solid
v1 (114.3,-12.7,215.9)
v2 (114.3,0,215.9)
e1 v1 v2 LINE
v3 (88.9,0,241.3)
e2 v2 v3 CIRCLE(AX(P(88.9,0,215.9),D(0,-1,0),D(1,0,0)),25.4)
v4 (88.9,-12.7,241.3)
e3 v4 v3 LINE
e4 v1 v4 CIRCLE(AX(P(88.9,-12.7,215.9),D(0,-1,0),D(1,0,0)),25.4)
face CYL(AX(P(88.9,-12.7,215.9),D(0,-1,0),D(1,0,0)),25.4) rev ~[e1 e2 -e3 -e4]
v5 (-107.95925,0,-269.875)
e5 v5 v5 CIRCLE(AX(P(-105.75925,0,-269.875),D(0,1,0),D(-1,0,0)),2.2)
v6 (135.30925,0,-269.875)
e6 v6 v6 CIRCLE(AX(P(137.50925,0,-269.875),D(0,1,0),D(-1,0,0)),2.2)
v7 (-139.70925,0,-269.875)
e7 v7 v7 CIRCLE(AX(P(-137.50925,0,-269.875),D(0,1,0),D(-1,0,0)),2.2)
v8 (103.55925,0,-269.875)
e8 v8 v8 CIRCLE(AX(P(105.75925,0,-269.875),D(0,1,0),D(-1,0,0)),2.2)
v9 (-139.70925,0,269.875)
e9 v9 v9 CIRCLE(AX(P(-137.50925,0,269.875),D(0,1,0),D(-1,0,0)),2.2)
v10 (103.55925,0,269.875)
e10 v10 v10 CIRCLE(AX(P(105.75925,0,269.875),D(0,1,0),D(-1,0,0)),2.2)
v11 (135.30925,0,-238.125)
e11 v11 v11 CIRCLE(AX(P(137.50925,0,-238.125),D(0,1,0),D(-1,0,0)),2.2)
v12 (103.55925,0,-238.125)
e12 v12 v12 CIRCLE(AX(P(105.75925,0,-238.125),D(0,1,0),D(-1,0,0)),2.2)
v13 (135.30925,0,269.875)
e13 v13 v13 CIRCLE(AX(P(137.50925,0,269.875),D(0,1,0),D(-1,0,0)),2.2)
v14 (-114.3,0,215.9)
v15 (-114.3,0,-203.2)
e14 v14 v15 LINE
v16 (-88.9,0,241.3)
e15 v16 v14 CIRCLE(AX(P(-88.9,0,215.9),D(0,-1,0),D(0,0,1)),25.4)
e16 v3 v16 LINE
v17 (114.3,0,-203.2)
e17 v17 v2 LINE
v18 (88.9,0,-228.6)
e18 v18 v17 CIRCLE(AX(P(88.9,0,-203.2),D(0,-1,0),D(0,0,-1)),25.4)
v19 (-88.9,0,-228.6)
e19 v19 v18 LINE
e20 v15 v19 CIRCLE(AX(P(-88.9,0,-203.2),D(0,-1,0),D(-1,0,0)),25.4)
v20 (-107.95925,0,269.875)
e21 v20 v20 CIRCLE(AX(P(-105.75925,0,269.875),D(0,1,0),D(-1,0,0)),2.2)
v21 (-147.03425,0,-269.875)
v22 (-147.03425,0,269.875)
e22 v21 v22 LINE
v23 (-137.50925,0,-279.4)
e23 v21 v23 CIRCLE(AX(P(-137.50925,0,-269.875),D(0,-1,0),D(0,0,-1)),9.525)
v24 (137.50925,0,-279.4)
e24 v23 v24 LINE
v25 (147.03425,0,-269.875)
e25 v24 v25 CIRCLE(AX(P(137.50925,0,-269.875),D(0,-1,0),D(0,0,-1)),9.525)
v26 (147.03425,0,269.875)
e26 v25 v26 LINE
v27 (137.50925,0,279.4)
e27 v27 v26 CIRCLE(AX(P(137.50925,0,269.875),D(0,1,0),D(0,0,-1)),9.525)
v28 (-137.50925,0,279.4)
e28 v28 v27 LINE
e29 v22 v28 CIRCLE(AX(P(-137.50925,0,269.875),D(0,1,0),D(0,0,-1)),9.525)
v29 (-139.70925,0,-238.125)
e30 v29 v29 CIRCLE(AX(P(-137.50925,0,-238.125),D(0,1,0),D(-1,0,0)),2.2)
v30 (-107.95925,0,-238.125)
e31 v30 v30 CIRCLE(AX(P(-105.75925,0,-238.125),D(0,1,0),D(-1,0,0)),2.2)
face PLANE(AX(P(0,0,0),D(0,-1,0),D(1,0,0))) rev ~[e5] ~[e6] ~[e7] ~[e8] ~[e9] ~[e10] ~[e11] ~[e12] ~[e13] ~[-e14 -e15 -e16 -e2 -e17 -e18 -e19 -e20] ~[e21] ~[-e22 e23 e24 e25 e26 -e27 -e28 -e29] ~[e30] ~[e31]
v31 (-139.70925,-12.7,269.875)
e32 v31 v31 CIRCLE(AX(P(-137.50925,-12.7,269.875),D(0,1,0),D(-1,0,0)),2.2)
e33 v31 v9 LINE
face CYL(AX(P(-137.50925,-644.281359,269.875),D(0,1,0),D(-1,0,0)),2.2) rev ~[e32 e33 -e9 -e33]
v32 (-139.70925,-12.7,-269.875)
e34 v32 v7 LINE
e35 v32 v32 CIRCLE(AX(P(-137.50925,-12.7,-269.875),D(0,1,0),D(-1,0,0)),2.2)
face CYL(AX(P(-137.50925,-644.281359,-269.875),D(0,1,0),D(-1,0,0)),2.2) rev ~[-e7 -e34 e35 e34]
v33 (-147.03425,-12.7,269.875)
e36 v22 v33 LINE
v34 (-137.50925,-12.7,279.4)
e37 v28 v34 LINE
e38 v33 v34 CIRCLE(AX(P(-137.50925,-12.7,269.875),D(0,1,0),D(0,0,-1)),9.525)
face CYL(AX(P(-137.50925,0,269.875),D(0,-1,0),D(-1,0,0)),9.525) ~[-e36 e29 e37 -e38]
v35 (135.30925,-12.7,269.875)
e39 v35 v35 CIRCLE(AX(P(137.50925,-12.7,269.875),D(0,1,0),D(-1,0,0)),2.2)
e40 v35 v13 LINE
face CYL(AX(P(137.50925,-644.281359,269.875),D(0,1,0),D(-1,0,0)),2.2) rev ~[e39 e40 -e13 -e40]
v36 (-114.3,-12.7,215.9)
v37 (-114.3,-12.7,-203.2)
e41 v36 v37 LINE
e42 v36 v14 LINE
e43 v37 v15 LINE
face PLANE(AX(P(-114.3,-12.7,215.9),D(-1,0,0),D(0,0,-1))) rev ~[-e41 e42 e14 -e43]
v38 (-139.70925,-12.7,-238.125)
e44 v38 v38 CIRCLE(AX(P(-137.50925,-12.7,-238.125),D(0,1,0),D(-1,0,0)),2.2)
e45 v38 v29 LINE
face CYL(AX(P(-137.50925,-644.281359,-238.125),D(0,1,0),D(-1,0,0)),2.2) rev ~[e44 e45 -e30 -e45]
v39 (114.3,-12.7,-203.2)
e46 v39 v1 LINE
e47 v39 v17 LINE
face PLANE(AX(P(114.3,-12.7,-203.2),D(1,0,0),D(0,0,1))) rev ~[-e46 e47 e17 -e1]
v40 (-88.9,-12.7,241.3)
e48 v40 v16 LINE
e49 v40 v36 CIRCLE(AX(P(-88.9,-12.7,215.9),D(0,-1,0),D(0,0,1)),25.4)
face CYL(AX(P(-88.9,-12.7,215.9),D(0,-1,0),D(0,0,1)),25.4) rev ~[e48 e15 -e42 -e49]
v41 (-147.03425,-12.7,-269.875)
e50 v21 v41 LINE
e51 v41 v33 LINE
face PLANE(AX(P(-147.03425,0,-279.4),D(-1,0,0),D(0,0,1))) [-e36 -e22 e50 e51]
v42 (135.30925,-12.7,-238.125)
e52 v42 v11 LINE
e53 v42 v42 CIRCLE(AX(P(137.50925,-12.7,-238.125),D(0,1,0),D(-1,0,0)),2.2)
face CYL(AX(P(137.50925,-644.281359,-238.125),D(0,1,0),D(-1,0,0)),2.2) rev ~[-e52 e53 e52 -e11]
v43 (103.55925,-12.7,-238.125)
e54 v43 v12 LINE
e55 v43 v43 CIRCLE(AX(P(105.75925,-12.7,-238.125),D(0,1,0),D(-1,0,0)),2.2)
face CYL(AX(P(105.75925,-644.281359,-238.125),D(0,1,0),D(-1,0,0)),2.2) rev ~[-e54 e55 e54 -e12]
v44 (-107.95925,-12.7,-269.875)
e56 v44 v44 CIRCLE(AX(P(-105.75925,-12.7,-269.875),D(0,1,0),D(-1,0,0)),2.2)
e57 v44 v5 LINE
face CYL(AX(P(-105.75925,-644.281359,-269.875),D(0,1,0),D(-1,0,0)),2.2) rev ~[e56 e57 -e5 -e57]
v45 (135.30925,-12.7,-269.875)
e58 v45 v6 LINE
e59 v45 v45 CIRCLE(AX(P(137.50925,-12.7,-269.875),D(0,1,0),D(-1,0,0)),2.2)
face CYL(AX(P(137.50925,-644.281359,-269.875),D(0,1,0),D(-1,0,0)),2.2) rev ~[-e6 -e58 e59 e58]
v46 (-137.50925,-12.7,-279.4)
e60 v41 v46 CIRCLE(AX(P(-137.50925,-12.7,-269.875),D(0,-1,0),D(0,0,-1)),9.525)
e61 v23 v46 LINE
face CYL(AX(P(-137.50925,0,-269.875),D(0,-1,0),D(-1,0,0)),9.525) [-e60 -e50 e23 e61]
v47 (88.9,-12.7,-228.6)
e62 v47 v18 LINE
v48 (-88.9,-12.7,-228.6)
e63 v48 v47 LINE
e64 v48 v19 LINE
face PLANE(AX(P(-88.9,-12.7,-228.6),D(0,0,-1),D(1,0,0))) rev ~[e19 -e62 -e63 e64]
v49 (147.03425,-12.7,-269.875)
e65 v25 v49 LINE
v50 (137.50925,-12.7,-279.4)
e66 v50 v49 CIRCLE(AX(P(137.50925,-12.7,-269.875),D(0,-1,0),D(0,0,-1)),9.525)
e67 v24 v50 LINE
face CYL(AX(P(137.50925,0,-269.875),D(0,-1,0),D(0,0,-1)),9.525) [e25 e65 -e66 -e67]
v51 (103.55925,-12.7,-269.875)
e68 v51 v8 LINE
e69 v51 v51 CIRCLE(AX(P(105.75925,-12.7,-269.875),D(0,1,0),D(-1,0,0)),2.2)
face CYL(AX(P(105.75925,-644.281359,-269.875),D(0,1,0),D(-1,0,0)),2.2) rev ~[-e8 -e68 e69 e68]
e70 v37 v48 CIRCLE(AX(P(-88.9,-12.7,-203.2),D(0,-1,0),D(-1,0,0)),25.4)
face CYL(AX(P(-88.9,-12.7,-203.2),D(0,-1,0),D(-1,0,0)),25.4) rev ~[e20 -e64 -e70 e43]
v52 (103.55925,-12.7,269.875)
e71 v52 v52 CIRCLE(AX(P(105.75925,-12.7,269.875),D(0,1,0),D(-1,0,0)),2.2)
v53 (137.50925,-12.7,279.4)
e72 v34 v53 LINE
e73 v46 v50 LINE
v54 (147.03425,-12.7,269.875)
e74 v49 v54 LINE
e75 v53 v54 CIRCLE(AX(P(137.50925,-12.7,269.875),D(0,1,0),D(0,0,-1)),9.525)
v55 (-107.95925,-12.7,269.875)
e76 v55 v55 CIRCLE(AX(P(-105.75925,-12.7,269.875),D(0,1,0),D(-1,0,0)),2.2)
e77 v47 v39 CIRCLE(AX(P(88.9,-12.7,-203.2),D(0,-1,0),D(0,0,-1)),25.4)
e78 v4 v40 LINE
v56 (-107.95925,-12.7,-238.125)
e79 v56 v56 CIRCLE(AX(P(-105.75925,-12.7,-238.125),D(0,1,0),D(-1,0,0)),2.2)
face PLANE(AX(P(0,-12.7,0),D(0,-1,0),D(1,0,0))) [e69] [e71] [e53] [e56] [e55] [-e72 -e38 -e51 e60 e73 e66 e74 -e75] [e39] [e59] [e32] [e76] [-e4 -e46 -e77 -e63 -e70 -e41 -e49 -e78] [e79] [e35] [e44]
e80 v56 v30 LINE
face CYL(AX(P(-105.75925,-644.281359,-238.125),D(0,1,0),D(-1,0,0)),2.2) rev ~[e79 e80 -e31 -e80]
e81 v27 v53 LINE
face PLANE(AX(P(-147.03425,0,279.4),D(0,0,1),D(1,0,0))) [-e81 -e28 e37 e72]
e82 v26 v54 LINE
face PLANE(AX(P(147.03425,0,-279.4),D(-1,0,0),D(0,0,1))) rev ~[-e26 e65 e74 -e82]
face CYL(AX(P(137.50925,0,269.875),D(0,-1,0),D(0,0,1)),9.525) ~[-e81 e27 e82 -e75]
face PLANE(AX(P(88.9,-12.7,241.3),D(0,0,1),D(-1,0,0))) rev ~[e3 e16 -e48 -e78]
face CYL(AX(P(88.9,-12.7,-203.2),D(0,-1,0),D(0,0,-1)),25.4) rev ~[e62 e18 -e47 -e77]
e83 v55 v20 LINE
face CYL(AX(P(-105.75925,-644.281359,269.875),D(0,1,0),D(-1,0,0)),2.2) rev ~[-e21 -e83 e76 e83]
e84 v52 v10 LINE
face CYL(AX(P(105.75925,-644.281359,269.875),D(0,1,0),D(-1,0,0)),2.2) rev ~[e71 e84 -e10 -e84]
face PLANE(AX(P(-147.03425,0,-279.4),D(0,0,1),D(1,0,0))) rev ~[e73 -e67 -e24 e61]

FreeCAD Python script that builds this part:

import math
import FreeCAD as App
import Part
import Sketcher

V = App.Vector
Q = App.Units.Quantity


def edges_at(feature, points):
    """Names of the edges that pass closest to the given points."""
    edges = feature.Shape.Edges
    near = lambda p: min(range(len(edges)), key=lambda i: edges[i].distToShape(Part.Vertex(*p))[0])
    return sorted({f"Edge{near(p) + 1}" for p in points})

doc = App.newDocument("Part")
params = doc.addObject("Spreadsheet::Sheet", "Params")
for row, (alias, value) in enumerate([
    ("sketch1_height", "22 in"),
    ("pad1_length", "0.5 in"),
    ("hole_diameter", "4.4 mm"),
    ("fillet_radius", "0.375 in"),
    ("sketch3_radius", "1 in"),
    ("sketch3_width", "7 in"),
    ("sketch3_height", "16.5 in"),
], start=1):
    params.set(f"A{row}", alias)
    params.set(f"B{row}", "=" + value)
    params.setAlias(f"B{row}", alias)

body = doc.addObject("PartDesign::Body", "Body")

sketch1 = body.newObject("Sketcher::SketchObject", "Sketch")
sketch1.AttachmentSupport = (doc.getObject("XZ_Plane"), [""])
sketch1.MapMode = "FlatFace"
sketch1.addGeometry([
    Part.LineSegment(V(-147.03425, 279.4, 0), V(-147.03425, -279.4, 0)),
    Part.LineSegment(V(-147.03425, -279.4, 0), V(147.03425, -279.4, 0)),
    Part.LineSegment(V(147.03425, -279.4, 0), V(147.03425, 279.4, 0)),
    Part.LineSegment(V(147.03425, 279.4, 0), V(-147.03425, 279.4, 0)),
], False)
sketch1.addConstraint([
    Sketcher.Constraint("Coincident", 0, 2, 1, 1),
    Sketcher.Constraint("Coincident", 1, 2, 2, 1),
    Sketcher.Constraint("Coincident", 2, 2, 3, 1),
    Sketcher.Constraint("Coincident", 3, 2, 0, 1),
    Sketcher.Constraint("Vertical", 0),
    Sketcher.Constraint("Horizontal", 1),
    Sketcher.Constraint("Vertical", 2),
    Sketcher.Constraint("Horizontal", 3),
    Sketcher.Constraint("Symmetric", 0, 2, 2, 2, -1, 1),
    Sketcher.Constraint("DistanceY", 0, 2, 0, 1, Q("22 in")),
    Sketcher.Constraint("DistanceX", 1, 1, 1, 2, Q("11.5775 in")),
])
sketch1.setExpression("Constraints[9]", "Params.sketch1_height")
pad1 = body.newObject("PartDesign::Pad", "Pad")
pad1.Profile = sketch1
pad1.setExpression("Length", "Params.pad1_length")

sketch2 = body.newObject("Sketcher::SketchObject", "Sketch001")
sketch2.AttachmentSupport = (doc.getObject("XZ_Plane"), [""])
sketch2.MapMode = "FlatFace"
sketch2.AttachmentOffset = App.Placement(V(0, 0, 0.5 * 25.4), App.Rotation())
sketch2.addGeometry([
    Part.Circle(V(-137.50925, 269.875, 0), V(0, 0, 1), 2.2),
    Part.Circle(V(-105.75925, 269.875, 0), V(0, 0, 1), 2.2),
    Part.Circle(V(105.75925, 269.875, 0), V(0, 0, 1), 2.2),
    Part.Circle(V(137.50925, 269.875, 0), V(0, 0, 1), 2.2),
    Part.Circle(V(105.75925, -238.125, 0), V(0, 0, 1), 2.2),
    Part.Circle(V(137.50925, -238.125, 0), V(0, 0, 1), 2.2),
    Part.Circle(V(137.50925, -269.875, 0), V(0, 0, 1), 2.2),
    Part.Circle(V(105.75925, -269.875, 0), V(0, 0, 1), 2.2),
    Part.Circle(V(-105.75925, -269.875, 0), V(0, 0, 1), 2.2),
    Part.Circle(V(-137.50925, -269.875, 0), V(0, 0, 1), 2.2),
    Part.Circle(V(-137.50925, -238.125, 0), V(0, 0, 1), 2.2),
    Part.Circle(V(-105.75925, -238.125, 0), V(0, 0, 1), 2.2),
], False)
sketch2.addConstraint([
    Sketcher.Constraint("Equal", 0, 1),
    Sketcher.Constraint("Equal", 1, 2),
    Sketcher.Constraint("Equal", 2, 3),
    Sketcher.Constraint("Equal", 3, 4),
    Sketcher.Constraint("Equal", 4, 5),
    Sketcher.Constraint("Equal", 5, 6),
    Sketcher.Constraint("Equal", 6, 7),
    Sketcher.Constraint("Equal", 7, 8),
    Sketcher.Constraint("Equal", 8, 9),
    Sketcher.Constraint("Equal", 9, 10),
    Sketcher.Constraint("Equal", 10, 11),
    Sketcher.Constraint("Symmetric", 0, 3, 6, 3, -1, 1),
    Sketcher.Constraint("Symmetric", 1, 3, 7, 3, -1, 1),
    Sketcher.Constraint("Symmetric", 2, 3, 8, 3, -1, 1),
    Sketcher.Constraint("Symmetric", 3, 3, 9, 3, -1, 1),
    Sketcher.Constraint("Symmetric", 1, 3, 2, 3, -2),
    Sketcher.Constraint("Symmetric", 0, 3, 3, 3, -2),
    Sketcher.Constraint("Symmetric", 5, 3, 10, 3, -2),
    Sketcher.Constraint("Symmetric", 4, 3, 11, 3, -2),
    Sketcher.Constraint("Horizontal", 0, 3, 1, 3),
    Sketcher.Constraint("Horizontal", 4, 3, 5, 3),
    Sketcher.Constraint("Vertical", 2, 3, 4, 3),
    Sketcher.Constraint("Vertical", 3, 3, 5, 3),
    Sketcher.Constraint("DistanceY", 4, 3, 2, 3, Q("20 in")),
    Sketcher.Constraint("Diameter", 0, Q("4.4 mm")),
    Sketcher.Constraint("DistanceX", 0, 3, 1, 3, Q("1.25 in")),
    Sketcher.Constraint("DistanceY", 6, 3, 5, 3, Q("1.25 in")),
    Sketcher.Constraint("DistanceX", 1, 3, 2, 3, Q("8.3275 in")),
])
doc.recompute()
hole = body.newObject("PartDesign::Hole", "Hole")
hole.Profile = sketch2
hole.ThreadType = "None"
hole.setExpression("Diameter", "Params.hole_diameter")
hole.DepthType = "ThroughAll"
doc.recompute()

fillet = body.newObject("PartDesign::Fillet", "Fillet")
fillet.Base = (hole, edges_at(hole, [
    (147.034, -6.35, 279.4),
    (147.034, -6.35, -279.4),
    (-147.034, -6.35, -279.4),
    (-147.034, -6.35, 279.4),
]))
fillet.setExpression("Radius", "Params.fillet_radius")

sketch3 = body.newObject("Sketcher::SketchObject", "Sketch002")
sketch3.AttachmentSupport = (doc.getObject("XZ_Plane"), [""])
sketch3.MapMode = "FlatFace"
sketch3.AttachmentOffset = App.Placement(V(0, 0, 0.5 * 25.4), App.Rotation())
sketch3.addGeometry([
    Part.LineSegment(V(88.9, 241.3, 0), V(-88.9, 241.3, 0)),
    Part.ArcOfCircle(Part.Circle(V(-88.9, 215.9, 0), V(0, 0, 1), 25.4), math.radians(90), math.radians(180)),
    Part.LineSegment(V(-114.3, 215.9, 0), V(-114.3, -203.2, 0)),
    Part.ArcOfCircle(Part.Circle(V(-88.9, -203.2, 0), V(0, 0, 1), 25.4), math.radians(180), math.radians(270)),
    Part.LineSegment(V(-88.9, -228.6, 0), V(88.9, -228.6, 0)),
    Part.ArcOfCircle(Part.Circle(V(88.9, -203.2, 0), V(0, 0, 1), 25.4), math.radians(-90), math.radians(0)),
    Part.LineSegment(V(114.3, -203.2, 0), V(114.3, 215.9, 0)),
    Part.ArcOfCircle(Part.Circle(V(88.9, 215.9, 0), V(0, 0, 1), 25.4), math.radians(0), math.radians(90)),
], False)
sketch3.addConstraint([
    Sketcher.Constraint("Tangent", 0, 2, 1, 1),
    Sketcher.Constraint("Tangent", 1, 2, 2, 1),
    Sketcher.Constraint("Tangent", 2, 2, 3, 1),
    Sketcher.Constraint("Tangent", 3, 2, 4, 1),
    Sketcher.Constraint("Tangent", 4, 2, 5, 1),
    Sketcher.Constraint("Tangent", 5, 2, 6, 1),
    Sketcher.Constraint("Tangent", 6, 2, 7, 1),
    Sketcher.Constraint("Tangent", 7, 2, 0, 1),
    Sketcher.Constraint("Horizontal", 0),
    Sketcher.Constraint("Vertical", 2),
    Sketcher.Constraint("Horizontal", 4),
    Sketcher.Constraint("Vertical", 6),
    Sketcher.Constraint("Equal", 1, 3),
    Sketcher.Constraint("Equal", 3, 5),
    Sketcher.Constraint("Equal", 5, 7),
    Sketcher.Constraint("Radius", 1, Q("1 in")),
    Sketcher.Constraint("DistanceX", 0, 2, 0, 1, Q("7 in")),
    Sketcher.Constraint("DistanceY", 2, 2, 2, 1, Q("16.5 in")),
    Sketcher.Constraint("DistanceY", 3, 3, -1, 1, Q("8 in")),
    Sketcher.Constraint("DistanceX", 1, 3, -1, 1, Q("3.5 in")),
])
sketch3.setExpression("Constraints[15]", "Params.sketch3_radius")
sketch3.setExpression("Constraints[16]", "Params.sketch3_width")
sketch3.setExpression("Constraints[17]", "Params.sketch3_height")
pocket1 = body.newObject("PartDesign::Pocket", "Pocket")
pocket1.Profile = sketch3
pocket1.Type = "ThroughAll"

doc.recompute()
